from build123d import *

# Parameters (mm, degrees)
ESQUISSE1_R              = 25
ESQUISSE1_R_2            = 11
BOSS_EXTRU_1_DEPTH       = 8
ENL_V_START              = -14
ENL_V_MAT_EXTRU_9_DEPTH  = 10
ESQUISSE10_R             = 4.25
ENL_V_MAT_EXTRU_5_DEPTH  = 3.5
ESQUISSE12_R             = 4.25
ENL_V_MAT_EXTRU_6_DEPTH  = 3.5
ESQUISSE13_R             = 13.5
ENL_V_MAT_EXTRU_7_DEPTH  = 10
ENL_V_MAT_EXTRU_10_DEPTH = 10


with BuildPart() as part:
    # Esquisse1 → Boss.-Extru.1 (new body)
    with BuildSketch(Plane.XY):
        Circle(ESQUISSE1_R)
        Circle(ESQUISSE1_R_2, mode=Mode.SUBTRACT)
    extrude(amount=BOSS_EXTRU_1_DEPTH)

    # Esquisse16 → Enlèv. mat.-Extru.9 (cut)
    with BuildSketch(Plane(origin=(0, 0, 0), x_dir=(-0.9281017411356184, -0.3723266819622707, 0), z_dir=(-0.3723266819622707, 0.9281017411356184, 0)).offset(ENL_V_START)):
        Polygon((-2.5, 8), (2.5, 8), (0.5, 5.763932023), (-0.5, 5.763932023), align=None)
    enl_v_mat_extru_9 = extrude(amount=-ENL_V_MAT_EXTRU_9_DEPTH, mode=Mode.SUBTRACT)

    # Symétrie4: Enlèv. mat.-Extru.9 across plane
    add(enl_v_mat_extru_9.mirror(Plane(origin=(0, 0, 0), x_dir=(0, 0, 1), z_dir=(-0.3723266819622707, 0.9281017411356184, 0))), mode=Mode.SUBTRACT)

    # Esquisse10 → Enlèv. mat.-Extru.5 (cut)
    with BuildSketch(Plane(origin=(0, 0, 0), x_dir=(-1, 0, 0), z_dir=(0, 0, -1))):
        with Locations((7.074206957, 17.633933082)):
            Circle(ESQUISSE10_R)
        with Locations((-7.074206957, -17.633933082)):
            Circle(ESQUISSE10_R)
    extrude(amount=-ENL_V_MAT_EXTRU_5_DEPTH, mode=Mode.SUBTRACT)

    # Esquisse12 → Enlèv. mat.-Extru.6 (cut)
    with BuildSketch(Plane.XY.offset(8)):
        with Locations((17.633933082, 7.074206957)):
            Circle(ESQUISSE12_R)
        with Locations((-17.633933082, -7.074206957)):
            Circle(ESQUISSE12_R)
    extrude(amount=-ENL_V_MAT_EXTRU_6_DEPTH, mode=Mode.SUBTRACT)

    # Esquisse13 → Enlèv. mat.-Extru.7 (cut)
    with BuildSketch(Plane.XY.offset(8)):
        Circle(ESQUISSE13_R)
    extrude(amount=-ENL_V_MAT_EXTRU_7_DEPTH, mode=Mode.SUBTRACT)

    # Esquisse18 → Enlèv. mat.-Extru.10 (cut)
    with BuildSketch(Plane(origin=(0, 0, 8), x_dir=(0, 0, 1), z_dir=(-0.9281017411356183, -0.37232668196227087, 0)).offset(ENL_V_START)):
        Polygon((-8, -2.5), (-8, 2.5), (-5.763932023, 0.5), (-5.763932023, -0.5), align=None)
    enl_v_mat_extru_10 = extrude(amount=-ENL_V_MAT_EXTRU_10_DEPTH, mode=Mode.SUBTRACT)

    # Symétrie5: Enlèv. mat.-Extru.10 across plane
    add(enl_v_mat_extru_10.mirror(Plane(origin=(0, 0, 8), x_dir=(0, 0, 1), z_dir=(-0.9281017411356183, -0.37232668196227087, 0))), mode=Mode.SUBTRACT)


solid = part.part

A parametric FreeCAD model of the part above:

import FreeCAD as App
import Part
import Sketcher
from FreeCAD import Vector
Q = App.Units.Quantity


def add_polygon(sketch, points):
    """Adds a closed chain of lines whose ends are joined by coincident constraints."""
    first, n = sketch.GeometryCount, len(points)
    for a, b in zip(points, points[1:] + points[:1]):
        sketch.addGeometry(Part.LineSegment(App.Vector(*a, 0), App.Vector(*b, 0)), False)
    for i in range(n):
        sketch.addConstraint(Sketcher.Constraint("Coincident", first + i, 2, first + (i + 1) % n, 1))

doc = App.newDocument("Part")
body = doc.addObject("PartDesign::Body", "Body")

sketch1 = doc.addObject("Sketcher::SketchObject", "Sketch")
body.addObject(sketch1)
sketch1.AttachmentSupport = (doc.XY_Plane, [""])
sketch1.MapMode = "FlatFace"
sketch1.addGeometry([
    Part.Circle(Vector(0, 0, 0), Vector(0, 0, 1), 25),
    Part.Circle(Vector(0, 0, 0), Vector(0, 0, 1), 11),
], False)
sketch1.addConstraint([
    Sketcher.Constraint("Coincident", 0, 3, -1, 1),
    Sketcher.Constraint("Coincident", 1, 3, -1, 1),
    Sketcher.Constraint("Diameter", 0, Q("50 mm")),
    Sketcher.Constraint("Diameter", 1, Q("22 mm")),
])
pad1 = doc.addObject("PartDesign::Pad", "Pad")
body.addObject(pad1)
pad1.Profile = sketch1
pad1.Length = 8

sketch2 = doc.addObject("Sketcher::SketchObject", "Sketch001")
body.addObject(sketch2)
sketch2.Placement = App.Placement(Vector(5.212574, -12.993424, 0), App.Rotation(Vector(-0.928101741, -0.372326682, 0), Vector(0, 0, 1), Vector(-0.372326682, 0.928101741, 0), "ZXY"))
add_polygon(sketch2, [(2.5, 8), (-2.5, 8), (-0.5, 5.8), (0.5, 5.8)])
sketch2.addConstraint([
    Sketcher.Constraint("Horizontal", 0),
    Sketcher.Constraint("Horizontal", 2),
    Sketcher.Constraint("Equal", 1, 3),
    Sketcher.Constraint("DistanceX", 0, 2, 0, 1, Q("5 mm")),
    Sketcher.Constraint("DistanceX", 2, 1, 2, 2, Q("1 mm")),
    Sketcher.Constraint("Distance", 1, Q("3 mm")),
    Sketcher.Constraint("DistanceY", -1, 1, 0, 2, Q("8 mm")),
    Sketcher.Constraint("DistanceX", 0, 2, -1, 1, Q("2.5 mm")),
])
pocket1 = doc.addObject("PartDesign::Pocket", "Pocket")
body.addObject(pocket1)
pocket1.Profile = sketch2
pocket1.Length = 10
doc.recompute()

datumplane = doc.addObject("PartDesign::Plane", "DatumPlane")
body.addObject(datumplane)
datumplane.Placement = App.Placement(Vector(0, 0, 0), App.Rotation(Vector(0.928101741, 0.372326682, 0), Vector(0, 0, -1), Vector(-0.372326682, 0.928101741, 0), "ZXY"))
mirrored = doc.addObject("PartDesign::Mirrored", "Mirrored")
body.addObject(mirrored)
mirrored.Originals = [pocket1]
mirrored.MirrorPlane = (datumplane, [""])
body.Tip = mirrored

sketch3 = doc.addObject("Sketcher::SketchObject", "Sketch002")
body.addObject(sketch3)
sketch3.AttachmentSupport = (doc.XY_Plane, [""])
sketch3.MapMode = "FlatFace"
sketch3.addGeometry([
    Part.Circle(Vector(-7.1, 17.6, 0), Vector(0, 0, 1), 4.2),
    Part.Circle(Vector(7.1, -17.6, 0), Vector(0, 0, 1), 4.2),
], False)
sketch3.addConstraint([
    Sketcher.Constraint("Equal", 0, 1),
    Sketcher.Constraint("Symmetric", 0, 3, 1, 3, -1, 1),
    Sketcher.Constraint("Diameter", 0, Q("8.5 mm")),
    Sketcher.Constraint("DistanceX", 0, 3, -1, 1, Q("7.074207 mm")),
    Sketcher.Constraint("DistanceY", -1, 1, 0, 3, Q("17.633933 mm")),
])
pocket2 = doc.addObject("PartDesign::Pocket", "Pocket001")
body.addObject(pocket2)
pocket2.Profile = sketch3
pocket2.Length = 3.5
pocket2.Reversed = True

sketch4 = doc.addObject("Sketcher::SketchObject", "Sketch003")
body.addObject(sketch4)
sketch4.AttachmentSupport = (doc.XY_Plane, [""])
sketch4.MapMode = "FlatFace"
sketch4.AttachmentOffset = App.Placement(Vector(0, 0, 8), App.Rotation())
sketch4.addGeometry([
    Part.Circle(Vector(17.6, 7.1, 0), Vector(0, 0, 1), 4.2),
    Part.Circle(Vector(-17.6, -7.1, 0), Vector(0, 0, 1), 4.2),
], False)
sketch4.addConstraint([
    Sketcher.Constraint("Equal", 0, 1),
    Sketcher.Constraint("Symmetric", 0, 3, 1, 3, -1, 1),
    Sketcher.Constraint("Diameter", 0, Q("8.5 mm")),
    Sketcher.Constraint("DistanceX", -1, 1, 0, 3, Q("17.633933 mm")),
    Sketcher.Constraint("DistanceY", -1, 1, 0, 3, Q("7.074207 mm")),
])
pocket3 = doc.addObject("PartDesign::Pocket", "Pocket002")
body.addObject(pocket3)
pocket3.Profile = sketch4
pocket3.Length = 3.5

sketch5 = doc.addObject("Sketcher::SketchObject", "Sketch004")
body.addObject(sketch5)
sketch5.AttachmentSupport = (doc.XY_Plane, [""])
sketch5.MapMode = "FlatFace"
sketch5.AttachmentOffset = App.Placement(Vector(0, 0, 8), App.Rotation())
sketch5.addGeometry(Part.Circle(Vector(0, 0, 0), Vector(0, 0, 1), 14), False)
sketch5.addConstraint([
    Sketcher.Constraint("Coincident", 0, 3, -1, 1),
    Sketcher.Constraint("Diameter", 0, Q("27 mm")),
])
pocket4 = doc.addObject("PartDesign::Pocket", "Pocket003")
body.addObject(pocket4)
pocket4.Profile = sketch5
pocket4.Length = 10

sketch6 = doc.addObject("Sketcher::SketchObject", "Sketch005")
body.addObject(sketch6)
sketch6.Placement = App.Placement(Vector(12.993424, 5.212574, 8), App.Rotation(Vector(0, 0, 1), Vector(-0.372326682, 0.928101741, 0), Vector(-0.928101741, -0.372326682, 0), "ZXY"))
add_polygon(sketch6, [(-8, 2.5), (-8, -2.5), (-5.8, -0.5), (-5.8, 0.5)])
sketch6.addConstraint([
    Sketcher.Constraint("Vertical", 0),
    Sketcher.Constraint("Vertical", 2),
    Sketcher.Constraint("Equal", 1, 3),
    Sketcher.Constraint("DistanceY", 0, 2, 0, 1, Q("5 mm")),
    Sketcher.Constraint("DistanceY", 2, 1, 2, 2, Q("1 mm")),
    Sketcher.Constraint("Distance", 1, Q("3 mm")),
    Sketcher.Constraint("DistanceX", 0, 2, -1, 1, Q("8 mm")),
    Sketcher.Constraint("DistanceY", 0, 2, -1, 1, Q("2.5 mm")),
])
pocket5 = doc.addObject("PartDesign::Pocket", "Pocket004")
body.addObject(pocket5)
pocket5.Profile = sketch6
pocket5.Length = 10
doc.recompute()

datumplane2 = doc.addObject("PartDesign::Plane", "DatumPlane001")
body.addObject(datumplane2)
datumplane2.Placement = App.Placement(Vector(0, 0, 0), App.Rotation(Vector(-0.372326682, 0.928101741, 0), Vector(0, 0, -1), Vector(-0.928101741, -0.372326682, 0), "ZXY"))
mirrored2 = doc.addObject("PartDesign::Mirrored", "Mirrored001")
body.addObject(mirrored2)
mirrored2.Originals = [pocket5]
mirrored2.MirrorPlane = (datumplane2, [""])
body.Tip = mirrored2

doc.recompute()
